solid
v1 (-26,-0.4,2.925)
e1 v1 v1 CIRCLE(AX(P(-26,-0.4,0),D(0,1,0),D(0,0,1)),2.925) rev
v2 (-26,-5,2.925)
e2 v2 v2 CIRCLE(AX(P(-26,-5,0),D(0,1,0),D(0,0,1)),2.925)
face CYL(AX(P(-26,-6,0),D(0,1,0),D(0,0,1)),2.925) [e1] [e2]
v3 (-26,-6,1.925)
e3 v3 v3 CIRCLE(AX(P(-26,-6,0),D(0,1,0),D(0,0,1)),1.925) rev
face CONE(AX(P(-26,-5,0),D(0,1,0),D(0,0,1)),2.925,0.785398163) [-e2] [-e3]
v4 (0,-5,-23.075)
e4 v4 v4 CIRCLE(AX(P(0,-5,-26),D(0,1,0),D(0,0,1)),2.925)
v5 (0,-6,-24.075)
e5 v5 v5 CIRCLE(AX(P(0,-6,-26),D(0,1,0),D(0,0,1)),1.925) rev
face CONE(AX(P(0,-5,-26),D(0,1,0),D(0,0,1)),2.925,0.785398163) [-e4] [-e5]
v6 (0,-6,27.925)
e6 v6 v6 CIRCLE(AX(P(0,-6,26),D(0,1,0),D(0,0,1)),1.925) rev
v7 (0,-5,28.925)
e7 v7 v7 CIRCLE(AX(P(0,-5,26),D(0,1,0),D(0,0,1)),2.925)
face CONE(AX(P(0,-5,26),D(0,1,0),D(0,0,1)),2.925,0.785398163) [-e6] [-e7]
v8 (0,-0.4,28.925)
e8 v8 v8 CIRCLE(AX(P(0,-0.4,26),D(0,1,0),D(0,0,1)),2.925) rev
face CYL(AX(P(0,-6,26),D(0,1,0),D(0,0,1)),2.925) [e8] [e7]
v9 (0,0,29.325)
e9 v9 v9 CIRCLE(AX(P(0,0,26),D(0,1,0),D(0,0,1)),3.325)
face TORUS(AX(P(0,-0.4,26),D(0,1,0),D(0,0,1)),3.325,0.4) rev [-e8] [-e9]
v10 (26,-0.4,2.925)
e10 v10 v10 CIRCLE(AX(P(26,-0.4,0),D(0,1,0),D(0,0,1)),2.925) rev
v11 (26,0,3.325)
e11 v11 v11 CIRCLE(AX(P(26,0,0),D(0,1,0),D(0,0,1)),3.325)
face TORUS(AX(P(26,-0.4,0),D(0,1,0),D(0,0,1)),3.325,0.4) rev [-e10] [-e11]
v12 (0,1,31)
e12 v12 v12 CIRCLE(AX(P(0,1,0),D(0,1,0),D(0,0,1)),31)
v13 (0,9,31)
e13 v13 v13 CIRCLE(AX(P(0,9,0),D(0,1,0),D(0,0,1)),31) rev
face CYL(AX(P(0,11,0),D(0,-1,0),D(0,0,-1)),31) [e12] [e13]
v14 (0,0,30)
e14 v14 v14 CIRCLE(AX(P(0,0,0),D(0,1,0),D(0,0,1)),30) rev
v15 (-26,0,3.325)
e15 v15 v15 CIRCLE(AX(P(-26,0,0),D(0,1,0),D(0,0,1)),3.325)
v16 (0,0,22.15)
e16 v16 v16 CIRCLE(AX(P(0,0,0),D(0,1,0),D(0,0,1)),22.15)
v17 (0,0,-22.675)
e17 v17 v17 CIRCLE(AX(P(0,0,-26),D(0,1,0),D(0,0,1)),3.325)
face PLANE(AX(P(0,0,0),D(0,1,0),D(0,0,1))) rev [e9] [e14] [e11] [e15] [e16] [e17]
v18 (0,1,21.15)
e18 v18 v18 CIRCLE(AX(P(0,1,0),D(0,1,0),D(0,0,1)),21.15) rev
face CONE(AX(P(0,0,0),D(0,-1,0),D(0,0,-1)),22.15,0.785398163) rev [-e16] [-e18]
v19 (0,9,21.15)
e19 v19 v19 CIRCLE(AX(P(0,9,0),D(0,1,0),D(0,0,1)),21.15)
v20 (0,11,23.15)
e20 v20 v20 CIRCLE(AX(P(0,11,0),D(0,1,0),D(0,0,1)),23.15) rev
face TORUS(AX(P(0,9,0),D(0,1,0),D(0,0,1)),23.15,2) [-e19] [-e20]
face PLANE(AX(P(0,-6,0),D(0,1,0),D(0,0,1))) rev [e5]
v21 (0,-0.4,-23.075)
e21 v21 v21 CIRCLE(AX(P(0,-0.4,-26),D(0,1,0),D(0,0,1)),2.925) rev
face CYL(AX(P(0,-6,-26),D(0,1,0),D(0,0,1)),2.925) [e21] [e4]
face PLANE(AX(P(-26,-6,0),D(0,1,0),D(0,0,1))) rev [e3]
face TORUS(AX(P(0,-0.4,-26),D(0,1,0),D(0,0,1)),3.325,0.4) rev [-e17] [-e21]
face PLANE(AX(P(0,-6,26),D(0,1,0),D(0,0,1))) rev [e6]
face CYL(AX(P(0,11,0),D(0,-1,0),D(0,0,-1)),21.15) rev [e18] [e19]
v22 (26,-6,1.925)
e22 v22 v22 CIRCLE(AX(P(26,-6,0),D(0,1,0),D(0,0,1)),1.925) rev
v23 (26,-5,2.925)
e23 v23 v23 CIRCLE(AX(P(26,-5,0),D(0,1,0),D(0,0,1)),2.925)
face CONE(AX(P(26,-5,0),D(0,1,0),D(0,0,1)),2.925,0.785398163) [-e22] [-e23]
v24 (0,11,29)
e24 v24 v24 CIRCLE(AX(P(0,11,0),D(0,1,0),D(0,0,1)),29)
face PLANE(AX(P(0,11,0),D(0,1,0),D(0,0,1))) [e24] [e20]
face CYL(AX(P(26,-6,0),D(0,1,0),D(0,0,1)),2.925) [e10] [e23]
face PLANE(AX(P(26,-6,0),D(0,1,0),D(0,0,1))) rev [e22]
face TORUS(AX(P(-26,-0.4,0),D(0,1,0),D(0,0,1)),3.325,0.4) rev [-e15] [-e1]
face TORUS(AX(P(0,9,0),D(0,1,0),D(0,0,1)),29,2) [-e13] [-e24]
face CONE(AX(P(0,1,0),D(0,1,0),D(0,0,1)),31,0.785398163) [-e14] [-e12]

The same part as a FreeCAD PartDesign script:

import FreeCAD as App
import Part
import Sketcher
from FreeCAD import Vector


def edges_at(feature, points):
    """Names of the edges that pass closest to the given points."""
    edges = feature.Shape.Edges
    near = lambda p: min(range(len(edges)), key=lambda i: edges[i].distToShape(Part.Vertex(*p))[0])
    return sorted({f"Edge{near(p) + 1}" for p in points})

doc = App.newDocument("Part")
body = doc.addObject("PartDesign::Body", "Body")

# Sketch on XZ plane
sketch1 = body.newObject("Sketcher::SketchObject", "Sketch")
sketch1.AttachmentSupport = (doc.getObject("XZ_Plane"), [""])
sketch1.MapMode = "FlatFace"
sketch1.addGeometry(Part.Circle(Vector(0, 0, 0), Vector(0, 0, 1), 31), False)
sketch1.addGeometry(Part.Circle(Vector(0, 0, 0), Vector(0, 0, 1), 21), False)
sketch1.addConstraint(Sketcher.Constraint("Coincident", 0, 3, -1, 1))
sketch1.addConstraint(Sketcher.Constraint("Coincident", 1, 3, -1, 1))
sketch1.addConstraint(Sketcher.Constraint("Diameter", 0, 62.0))
sketch1.addConstraint(Sketcher.Constraint("Diameter", 1, 42.3))
pad1 = body.newObject("PartDesign::Pad", "Pad")
pad1.Profile = sketch1
pad1.Length = 11
pad1.Reversed = True

# Sketch on XZ plane
sketch2 = body.newObject("Sketcher::SketchObject", "Sketch001")
sketch2.AttachmentSupport = (doc.getObject("XZ_Plane"), [""])
sketch2.MapMode = "FlatFace"
sketch2.addGeometry(Part.Circle(Vector(0, -26, 0), Vector(0, 0, 1), 2.9), False)
sketch2.addGeometry(Part.Circle(Vector(0, 26, 0), Vector(0, 0, 1), 2.9), False)
sketch2.addGeometry(Part.Circle(Vector(-26, 0, 0), Vector(0, 0, 1), 2.9), False)
sketch2.addGeometry(Part.Circle(Vector(26, 0, 0), Vector(0, 0, 1), 2.9), False)
sketch2.addConstraint(Sketcher.Constraint("Equal", 0, 1))
sketch2.addConstraint(Sketcher.Constraint("Equal", 1, 2))
sketch2.addConstraint(Sketcher.Constraint("Equal", 2, 3))
sketch2.addConstraint(Sketcher.Constraint("Symmetric", 0, 3, 1, 3, -1, 1))
sketch2.addConstraint(Sketcher.Constraint("Symmetric", 2, 3, 3, 3, -1, 1))
sketch2.addConstraint(Sketcher.Constraint("PointOnObject", 0, 3, -2))
sketch2.addConstraint(Sketcher.Constraint("PointOnObject", 2, 3, -1))
sketch2.addConstraint(Sketcher.Constraint("Diameter", 0, 5.85))
sketch2.addConstraint(Sketcher.Constraint("DistanceY", 0, 3, -1, 1, 26.0))
sketch2.addConstraint(Sketcher.Constraint("DistanceX", 2, 3, -1, 1, 26.0))
pad2 = body.newObject("PartDesign::Pad", "Pad001")
pad2.Profile = sketch2
pad2.Length = 6
doc.recompute()

chamfer = body.newObject("PartDesign::Chamfer", "Chamfer")
chamfer.Base = (pad2, edges_at(pad2, [
    (0, -6, -28.925),
    (0, -6, 23.075),
    (-26, -6, -2.925),
    (26, -6, -2.925),
]))
chamfer.Size = 1
doc.recompute()

chamfer2 = body.newObject("PartDesign::Chamfer", "Chamfer001")
chamfer2.Base = (chamfer, edges_at(chamfer, [(0, 0, -31), (0, 0, -21.15)]))
chamfer2.Size = 1
doc.recompute()

fillet = body.newObject("PartDesign::Fillet", "Fillet")
fillet.Base = (chamfer2, edges_at(chamfer2, [(0, 11, -31), (0, 11, -21.15)]))
fillet.Radius = 2
doc.recompute()

fillet2 = body.newObject("PartDesign::Fillet", "Fillet001")
fillet2.Base = (fillet, edges_at(fillet, [
    (0, 0, -28.925),
    (0, 0, 23.075),
    (-26, 0, -2.925),
    (26, 0, -2.925),
]))
fillet2.Radius = 0.4

doc.recompute()
